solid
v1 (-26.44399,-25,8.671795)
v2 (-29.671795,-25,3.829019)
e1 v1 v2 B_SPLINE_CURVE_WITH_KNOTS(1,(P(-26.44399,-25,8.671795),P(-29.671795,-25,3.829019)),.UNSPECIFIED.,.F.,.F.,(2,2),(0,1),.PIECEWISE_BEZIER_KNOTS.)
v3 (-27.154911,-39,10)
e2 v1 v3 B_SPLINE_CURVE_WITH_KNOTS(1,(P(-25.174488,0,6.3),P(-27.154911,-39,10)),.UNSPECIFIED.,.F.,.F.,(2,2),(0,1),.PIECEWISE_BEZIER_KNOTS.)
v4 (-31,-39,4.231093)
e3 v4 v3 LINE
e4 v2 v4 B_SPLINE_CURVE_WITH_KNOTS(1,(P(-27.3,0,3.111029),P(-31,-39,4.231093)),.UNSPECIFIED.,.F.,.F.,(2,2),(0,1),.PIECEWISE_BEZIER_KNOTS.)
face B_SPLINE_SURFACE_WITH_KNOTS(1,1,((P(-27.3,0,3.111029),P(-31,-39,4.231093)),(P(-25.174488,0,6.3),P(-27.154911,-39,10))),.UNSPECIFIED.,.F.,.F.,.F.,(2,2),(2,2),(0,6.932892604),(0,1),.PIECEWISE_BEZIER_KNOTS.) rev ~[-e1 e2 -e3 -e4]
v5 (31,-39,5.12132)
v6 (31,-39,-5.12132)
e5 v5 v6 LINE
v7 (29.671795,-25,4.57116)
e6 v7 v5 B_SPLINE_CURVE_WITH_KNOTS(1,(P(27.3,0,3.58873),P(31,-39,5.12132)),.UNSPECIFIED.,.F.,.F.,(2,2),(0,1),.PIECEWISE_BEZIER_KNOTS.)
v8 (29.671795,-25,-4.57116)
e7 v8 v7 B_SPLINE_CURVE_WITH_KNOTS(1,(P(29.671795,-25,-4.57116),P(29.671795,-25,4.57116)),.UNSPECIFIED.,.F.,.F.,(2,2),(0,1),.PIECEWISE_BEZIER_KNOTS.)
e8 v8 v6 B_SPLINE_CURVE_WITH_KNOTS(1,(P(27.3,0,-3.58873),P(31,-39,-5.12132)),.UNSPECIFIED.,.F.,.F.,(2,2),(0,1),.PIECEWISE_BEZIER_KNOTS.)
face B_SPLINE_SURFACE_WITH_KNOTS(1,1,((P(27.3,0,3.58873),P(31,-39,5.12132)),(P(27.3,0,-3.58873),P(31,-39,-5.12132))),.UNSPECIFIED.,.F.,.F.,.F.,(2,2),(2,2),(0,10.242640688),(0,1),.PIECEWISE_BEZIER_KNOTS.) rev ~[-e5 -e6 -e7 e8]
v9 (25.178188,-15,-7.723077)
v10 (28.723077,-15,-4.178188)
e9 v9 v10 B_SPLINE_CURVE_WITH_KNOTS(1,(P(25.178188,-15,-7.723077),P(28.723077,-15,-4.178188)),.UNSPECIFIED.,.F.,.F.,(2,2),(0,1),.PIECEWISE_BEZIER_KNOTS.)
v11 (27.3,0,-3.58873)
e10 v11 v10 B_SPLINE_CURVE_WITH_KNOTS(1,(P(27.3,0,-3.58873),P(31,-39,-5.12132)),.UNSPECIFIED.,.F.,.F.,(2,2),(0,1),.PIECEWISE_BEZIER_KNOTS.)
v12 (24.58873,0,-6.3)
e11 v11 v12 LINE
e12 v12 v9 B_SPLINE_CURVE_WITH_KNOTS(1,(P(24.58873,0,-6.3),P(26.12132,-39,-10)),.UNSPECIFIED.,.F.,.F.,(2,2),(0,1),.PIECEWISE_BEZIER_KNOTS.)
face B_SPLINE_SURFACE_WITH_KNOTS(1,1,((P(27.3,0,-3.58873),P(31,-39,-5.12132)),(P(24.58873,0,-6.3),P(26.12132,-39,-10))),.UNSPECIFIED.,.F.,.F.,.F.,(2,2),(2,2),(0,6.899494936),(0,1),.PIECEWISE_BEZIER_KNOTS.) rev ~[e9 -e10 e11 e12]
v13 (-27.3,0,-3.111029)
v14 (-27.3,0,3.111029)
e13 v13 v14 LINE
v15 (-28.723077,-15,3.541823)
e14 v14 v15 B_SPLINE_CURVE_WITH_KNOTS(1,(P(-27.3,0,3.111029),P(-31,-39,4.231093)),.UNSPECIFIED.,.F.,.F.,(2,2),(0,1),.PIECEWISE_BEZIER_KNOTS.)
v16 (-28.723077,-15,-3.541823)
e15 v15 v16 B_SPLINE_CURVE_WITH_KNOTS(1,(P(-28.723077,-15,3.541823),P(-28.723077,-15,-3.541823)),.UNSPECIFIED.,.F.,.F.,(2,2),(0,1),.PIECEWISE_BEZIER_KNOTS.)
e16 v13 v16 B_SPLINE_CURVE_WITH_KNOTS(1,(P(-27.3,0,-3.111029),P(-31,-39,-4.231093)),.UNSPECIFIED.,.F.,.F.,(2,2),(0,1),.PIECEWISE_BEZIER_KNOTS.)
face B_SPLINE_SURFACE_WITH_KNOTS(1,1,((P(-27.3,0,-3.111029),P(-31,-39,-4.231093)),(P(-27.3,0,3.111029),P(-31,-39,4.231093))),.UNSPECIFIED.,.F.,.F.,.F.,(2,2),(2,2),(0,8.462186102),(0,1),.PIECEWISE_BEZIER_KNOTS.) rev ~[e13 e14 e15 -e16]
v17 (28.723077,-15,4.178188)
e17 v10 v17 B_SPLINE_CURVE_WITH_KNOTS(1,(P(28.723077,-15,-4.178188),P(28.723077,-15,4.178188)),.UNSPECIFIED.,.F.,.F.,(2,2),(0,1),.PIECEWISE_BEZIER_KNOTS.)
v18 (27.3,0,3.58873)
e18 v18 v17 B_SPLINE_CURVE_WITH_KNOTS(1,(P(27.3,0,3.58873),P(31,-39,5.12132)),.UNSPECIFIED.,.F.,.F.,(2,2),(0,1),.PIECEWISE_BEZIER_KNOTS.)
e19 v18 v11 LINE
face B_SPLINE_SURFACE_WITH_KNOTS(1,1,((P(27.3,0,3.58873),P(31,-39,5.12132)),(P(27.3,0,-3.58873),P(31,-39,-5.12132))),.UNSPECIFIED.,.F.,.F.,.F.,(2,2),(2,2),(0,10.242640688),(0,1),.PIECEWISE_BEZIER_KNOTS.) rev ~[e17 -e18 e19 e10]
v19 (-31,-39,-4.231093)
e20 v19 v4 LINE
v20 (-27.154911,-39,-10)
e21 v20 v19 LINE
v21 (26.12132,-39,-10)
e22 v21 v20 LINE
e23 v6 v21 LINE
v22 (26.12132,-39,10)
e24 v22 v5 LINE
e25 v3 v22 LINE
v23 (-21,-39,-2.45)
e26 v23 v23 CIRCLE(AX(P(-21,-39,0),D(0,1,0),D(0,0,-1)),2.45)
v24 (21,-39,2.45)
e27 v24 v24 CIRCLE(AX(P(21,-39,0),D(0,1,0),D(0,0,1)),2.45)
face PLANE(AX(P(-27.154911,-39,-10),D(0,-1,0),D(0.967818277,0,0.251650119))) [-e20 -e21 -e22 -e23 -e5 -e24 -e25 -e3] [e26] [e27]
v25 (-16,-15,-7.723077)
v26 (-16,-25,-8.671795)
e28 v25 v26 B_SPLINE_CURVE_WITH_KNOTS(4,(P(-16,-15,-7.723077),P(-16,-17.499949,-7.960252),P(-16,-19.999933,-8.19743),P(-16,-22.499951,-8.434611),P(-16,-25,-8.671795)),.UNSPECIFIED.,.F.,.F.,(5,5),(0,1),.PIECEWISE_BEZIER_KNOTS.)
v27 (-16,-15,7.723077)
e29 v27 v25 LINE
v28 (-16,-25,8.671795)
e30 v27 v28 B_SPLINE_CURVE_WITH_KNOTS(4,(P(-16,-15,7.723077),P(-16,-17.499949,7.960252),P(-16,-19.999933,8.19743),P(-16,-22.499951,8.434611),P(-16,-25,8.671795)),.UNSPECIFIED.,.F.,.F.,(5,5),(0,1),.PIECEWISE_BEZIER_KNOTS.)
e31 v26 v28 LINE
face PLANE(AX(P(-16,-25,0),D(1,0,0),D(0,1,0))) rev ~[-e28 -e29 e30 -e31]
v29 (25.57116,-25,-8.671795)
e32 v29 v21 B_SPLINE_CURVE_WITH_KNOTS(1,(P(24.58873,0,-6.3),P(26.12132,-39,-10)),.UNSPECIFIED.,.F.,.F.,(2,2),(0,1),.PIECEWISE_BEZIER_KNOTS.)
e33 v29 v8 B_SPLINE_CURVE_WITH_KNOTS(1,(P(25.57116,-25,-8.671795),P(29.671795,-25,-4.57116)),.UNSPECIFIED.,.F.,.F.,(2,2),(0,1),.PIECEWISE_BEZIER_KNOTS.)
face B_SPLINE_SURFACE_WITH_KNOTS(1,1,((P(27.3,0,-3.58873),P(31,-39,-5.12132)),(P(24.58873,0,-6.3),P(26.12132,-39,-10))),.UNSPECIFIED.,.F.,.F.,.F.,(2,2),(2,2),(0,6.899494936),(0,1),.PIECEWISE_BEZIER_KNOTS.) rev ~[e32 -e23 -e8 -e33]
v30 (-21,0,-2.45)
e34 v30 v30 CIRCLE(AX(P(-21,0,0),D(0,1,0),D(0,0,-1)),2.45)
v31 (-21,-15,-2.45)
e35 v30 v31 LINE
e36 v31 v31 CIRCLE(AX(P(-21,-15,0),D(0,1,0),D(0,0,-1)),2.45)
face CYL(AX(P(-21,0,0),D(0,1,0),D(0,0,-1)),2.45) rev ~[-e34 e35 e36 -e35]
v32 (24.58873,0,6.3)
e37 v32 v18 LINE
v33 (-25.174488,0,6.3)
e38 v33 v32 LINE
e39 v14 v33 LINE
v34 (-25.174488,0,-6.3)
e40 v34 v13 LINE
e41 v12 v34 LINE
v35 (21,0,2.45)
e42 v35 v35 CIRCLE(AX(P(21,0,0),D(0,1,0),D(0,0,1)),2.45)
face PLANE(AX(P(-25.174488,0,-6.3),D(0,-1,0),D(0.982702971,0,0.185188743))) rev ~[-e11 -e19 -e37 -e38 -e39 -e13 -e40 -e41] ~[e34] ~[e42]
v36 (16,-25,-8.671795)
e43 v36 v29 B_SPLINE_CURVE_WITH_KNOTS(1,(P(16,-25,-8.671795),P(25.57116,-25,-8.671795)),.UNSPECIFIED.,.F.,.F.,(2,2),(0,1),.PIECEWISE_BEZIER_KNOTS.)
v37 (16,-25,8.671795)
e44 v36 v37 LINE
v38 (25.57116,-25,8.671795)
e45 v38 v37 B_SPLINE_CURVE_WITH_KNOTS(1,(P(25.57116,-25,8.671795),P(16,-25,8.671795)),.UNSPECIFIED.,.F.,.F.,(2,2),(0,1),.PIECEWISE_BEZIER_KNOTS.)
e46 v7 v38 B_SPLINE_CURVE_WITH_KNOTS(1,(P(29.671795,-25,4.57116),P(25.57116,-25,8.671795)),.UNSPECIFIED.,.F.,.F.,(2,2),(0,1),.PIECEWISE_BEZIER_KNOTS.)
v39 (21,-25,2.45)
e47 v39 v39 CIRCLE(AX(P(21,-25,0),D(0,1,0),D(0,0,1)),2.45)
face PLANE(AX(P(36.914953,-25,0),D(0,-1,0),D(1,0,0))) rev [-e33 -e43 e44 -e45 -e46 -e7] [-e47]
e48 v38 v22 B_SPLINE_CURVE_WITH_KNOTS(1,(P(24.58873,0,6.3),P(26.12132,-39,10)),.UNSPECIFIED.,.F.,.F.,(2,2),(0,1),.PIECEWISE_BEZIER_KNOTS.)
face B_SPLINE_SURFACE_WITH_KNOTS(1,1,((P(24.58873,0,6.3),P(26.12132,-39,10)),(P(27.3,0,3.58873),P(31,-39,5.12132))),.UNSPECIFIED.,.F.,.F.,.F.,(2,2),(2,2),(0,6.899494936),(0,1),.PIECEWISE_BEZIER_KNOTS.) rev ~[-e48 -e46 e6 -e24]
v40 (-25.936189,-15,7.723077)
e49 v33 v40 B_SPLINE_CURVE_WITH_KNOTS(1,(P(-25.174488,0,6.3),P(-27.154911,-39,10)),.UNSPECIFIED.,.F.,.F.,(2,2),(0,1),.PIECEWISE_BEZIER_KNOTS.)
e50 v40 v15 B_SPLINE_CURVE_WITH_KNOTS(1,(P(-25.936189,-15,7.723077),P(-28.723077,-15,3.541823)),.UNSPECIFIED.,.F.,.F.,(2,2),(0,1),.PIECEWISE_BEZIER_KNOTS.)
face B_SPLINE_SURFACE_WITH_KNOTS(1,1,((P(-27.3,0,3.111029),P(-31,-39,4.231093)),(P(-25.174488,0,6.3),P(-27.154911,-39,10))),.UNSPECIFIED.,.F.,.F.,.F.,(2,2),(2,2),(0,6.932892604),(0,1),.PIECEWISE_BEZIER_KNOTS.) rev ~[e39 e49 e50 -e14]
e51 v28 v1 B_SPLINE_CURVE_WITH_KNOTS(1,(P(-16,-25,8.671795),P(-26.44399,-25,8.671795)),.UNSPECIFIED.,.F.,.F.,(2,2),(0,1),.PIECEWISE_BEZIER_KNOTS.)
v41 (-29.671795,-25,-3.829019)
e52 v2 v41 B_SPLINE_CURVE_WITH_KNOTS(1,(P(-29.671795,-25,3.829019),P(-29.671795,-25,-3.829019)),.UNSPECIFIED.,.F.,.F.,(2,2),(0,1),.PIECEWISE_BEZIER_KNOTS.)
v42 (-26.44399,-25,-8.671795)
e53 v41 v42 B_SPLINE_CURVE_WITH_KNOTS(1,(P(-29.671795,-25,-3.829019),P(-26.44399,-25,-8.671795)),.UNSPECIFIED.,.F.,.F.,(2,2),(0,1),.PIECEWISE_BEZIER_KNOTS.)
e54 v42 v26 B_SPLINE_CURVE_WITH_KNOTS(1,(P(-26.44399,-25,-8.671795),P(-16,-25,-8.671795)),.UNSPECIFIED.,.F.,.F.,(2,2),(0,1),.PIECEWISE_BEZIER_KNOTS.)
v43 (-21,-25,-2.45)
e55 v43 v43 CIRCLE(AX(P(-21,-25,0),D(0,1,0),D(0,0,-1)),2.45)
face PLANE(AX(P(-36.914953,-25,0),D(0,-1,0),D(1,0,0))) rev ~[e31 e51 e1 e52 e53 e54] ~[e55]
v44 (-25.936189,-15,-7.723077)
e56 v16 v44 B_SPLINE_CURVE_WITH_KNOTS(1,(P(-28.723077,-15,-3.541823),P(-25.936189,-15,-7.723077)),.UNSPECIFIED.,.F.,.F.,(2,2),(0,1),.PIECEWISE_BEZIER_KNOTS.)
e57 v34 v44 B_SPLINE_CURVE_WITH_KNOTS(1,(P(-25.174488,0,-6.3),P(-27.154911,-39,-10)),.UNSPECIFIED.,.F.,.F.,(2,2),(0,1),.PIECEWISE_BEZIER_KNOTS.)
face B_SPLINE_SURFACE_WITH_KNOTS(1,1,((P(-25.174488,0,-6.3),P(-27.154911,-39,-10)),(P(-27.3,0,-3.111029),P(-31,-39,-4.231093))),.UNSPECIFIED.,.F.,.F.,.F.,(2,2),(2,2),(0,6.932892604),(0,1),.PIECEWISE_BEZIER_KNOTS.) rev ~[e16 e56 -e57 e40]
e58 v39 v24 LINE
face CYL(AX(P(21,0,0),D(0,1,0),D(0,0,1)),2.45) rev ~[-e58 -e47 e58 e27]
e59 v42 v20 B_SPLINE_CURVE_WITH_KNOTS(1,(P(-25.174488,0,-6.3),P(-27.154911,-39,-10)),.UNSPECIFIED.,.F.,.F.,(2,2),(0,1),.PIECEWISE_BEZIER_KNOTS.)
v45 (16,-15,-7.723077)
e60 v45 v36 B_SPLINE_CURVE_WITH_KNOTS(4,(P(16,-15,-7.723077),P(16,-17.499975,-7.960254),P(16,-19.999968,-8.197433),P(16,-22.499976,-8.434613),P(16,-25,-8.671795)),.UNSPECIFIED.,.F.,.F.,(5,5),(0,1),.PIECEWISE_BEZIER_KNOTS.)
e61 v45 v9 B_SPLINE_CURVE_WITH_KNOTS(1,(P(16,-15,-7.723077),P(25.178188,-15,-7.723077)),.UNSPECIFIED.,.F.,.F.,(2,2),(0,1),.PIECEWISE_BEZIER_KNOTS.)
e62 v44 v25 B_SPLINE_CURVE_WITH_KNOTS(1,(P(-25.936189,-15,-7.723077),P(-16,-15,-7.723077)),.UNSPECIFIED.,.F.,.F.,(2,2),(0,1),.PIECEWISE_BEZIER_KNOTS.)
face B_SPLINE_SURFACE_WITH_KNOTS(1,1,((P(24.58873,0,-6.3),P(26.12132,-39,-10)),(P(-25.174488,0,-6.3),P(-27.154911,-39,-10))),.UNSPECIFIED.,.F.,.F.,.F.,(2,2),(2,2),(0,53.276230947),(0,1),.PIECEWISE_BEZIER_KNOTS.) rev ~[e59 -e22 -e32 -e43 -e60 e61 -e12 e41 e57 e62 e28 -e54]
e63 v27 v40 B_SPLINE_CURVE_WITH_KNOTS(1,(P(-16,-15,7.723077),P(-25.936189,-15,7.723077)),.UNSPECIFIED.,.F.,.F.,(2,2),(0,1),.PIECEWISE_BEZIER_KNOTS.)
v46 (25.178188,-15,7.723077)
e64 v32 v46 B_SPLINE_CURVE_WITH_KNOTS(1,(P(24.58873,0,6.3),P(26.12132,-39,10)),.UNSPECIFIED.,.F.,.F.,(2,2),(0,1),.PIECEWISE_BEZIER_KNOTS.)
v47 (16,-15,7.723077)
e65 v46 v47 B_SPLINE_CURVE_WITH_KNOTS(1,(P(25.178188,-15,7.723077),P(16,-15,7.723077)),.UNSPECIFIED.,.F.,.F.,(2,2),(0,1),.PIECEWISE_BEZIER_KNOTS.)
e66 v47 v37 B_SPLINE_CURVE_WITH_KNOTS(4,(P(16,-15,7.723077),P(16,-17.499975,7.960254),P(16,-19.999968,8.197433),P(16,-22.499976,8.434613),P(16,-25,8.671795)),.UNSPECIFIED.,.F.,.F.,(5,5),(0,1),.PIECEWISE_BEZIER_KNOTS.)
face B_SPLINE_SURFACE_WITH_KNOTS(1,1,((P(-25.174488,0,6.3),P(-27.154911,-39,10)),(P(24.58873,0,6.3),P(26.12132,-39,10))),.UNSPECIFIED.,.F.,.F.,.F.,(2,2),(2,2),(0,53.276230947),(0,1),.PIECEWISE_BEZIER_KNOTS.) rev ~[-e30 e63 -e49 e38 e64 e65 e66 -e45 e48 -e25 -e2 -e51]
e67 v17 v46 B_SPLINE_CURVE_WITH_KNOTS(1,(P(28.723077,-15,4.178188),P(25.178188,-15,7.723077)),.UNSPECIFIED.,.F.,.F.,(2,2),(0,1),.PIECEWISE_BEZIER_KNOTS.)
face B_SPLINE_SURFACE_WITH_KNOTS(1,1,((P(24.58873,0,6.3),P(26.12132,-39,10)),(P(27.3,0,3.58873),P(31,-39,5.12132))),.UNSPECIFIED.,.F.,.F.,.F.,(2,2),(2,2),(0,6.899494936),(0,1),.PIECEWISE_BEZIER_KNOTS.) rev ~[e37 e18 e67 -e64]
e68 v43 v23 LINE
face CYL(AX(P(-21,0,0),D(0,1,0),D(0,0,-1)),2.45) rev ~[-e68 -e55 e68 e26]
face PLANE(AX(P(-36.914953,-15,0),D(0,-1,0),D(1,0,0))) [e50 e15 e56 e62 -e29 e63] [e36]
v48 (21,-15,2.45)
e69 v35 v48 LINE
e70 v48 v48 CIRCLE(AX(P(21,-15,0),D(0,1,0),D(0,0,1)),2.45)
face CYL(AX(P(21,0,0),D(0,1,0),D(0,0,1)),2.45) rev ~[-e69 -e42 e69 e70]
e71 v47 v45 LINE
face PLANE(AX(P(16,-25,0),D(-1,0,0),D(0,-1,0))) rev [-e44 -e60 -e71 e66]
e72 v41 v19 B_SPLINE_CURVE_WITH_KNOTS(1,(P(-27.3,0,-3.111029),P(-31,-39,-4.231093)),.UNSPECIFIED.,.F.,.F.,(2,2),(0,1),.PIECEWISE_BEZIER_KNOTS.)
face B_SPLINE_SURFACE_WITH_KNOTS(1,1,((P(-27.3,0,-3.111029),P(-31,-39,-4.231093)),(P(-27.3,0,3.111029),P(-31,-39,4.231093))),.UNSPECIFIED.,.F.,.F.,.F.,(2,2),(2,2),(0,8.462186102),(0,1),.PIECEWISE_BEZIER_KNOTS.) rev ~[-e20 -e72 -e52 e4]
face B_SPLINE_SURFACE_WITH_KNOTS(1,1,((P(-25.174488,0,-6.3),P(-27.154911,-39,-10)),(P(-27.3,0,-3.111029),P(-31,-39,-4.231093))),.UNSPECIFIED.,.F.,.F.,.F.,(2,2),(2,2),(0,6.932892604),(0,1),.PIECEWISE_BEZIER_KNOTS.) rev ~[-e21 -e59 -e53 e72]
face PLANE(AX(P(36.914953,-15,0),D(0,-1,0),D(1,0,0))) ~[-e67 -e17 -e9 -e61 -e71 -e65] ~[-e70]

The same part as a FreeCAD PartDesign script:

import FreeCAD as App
import Part
import Sketcher
from FreeCAD import Vector


def add_polygon(sketch, points):
    """Adds a closed chain of lines whose ends are joined by coincident constraints."""
    first, n = sketch.GeometryCount, len(points)
    for a, b in zip(points, points[1:] + points[:1]):
        sketch.addGeometry(Part.LineSegment(App.Vector(*a, 0), App.Vector(*b, 0)), False)
    for i in range(n):
        sketch.addConstraint(Sketcher.Constraint("Coincident", first + i, 2, first + (i + 1) % n, 1))

doc = App.newDocument("Part")
body = doc.addObject("PartDesign::Body", "Body")

# Sketch on XZ plane
sketch1 = body.newObject("Sketcher::SketchObject", "Sketch")
sketch1.AttachmentSupport = (doc.getObject("XZ_Plane"), [""])
sketch1.MapMode = "FlatFace"
add_polygon(sketch1, [(-25.2, -6.3), (-27.3, -3.1), (-27.3, 3.1), (-25.2, 6.3), (24.6, 6.3), (27.3, 3.6), (27.3, -3.6), (24.6, -6.3)])  # lines 0-7
sketch1.addConstraint(Sketcher.Constraint("Vertical", 1))
sketch1.addConstraint(Sketcher.Constraint("Horizontal", 3))
sketch1.addConstraint(Sketcher.Constraint("Vertical", 5))
sketch1.addConstraint(Sketcher.Constraint("Horizontal", 7))
sketch1.addConstraint(Sketcher.Constraint("Symmetric", 3, 2, 6, 2, -1))
sketch1.addConstraint(Sketcher.Constraint("Perpendicular", 4, 6))
sketch1.addConstraint(Sketcher.Constraint("Vertical", 2, 2, 7, 2))
sketch1.addConstraint(Sketcher.Constraint("Equal", 0, 2))
sketch1.addConstraint(Sketcher.Constraint("Equal", 4, 6))
sketch1.addConstraint(Sketcher.Constraint("DistanceX", 0, 2, -1, 1, 27.3))
sketch1.addConstraint(Sketcher.Constraint("DistanceY", -1, 1, 2, 2, 6.3))
sketch1.addConstraint(Sketcher.Constraint("DistanceX", -1, 1, 4, 2, 27.3))
sketch1.addConstraint(Sketcher.Constraint("DistanceX", 3, 1, 3, 2, 49.763218))
sketch1.addConstraint(Sketcher.Constraint("DistanceY", 5, 2, 5, 1, 7.17746))
sketch1.addConstraint(Sketcher.Constraint("DistanceY", 1, 2, 4, 2, 0.477701))

# Sketch on XZ plane
sketch2 = body.newObject("Sketcher::SketchObject", "Sketch001")
sketch2.AttachmentSupport = (doc.getObject("XZ_Plane"), [""])
sketch2.MapMode = "FlatFace"
sketch2.AttachmentOffset = App.Placement(Vector(0, 0, 39), App.Rotation())
add_polygon(sketch2, [(26, -10), (-27, -10), (-31, -4), (-31, 4), (-27, 10), (26, 10), (31, 5), (31, -5)])  # lines 0-7
sketch2.addConstraint(Sketcher.Constraint("Horizontal", 0))
sketch2.addConstraint(Sketcher.Constraint("Vertical", 2))
sketch2.addConstraint(Sketcher.Constraint("Horizontal", 4))
sketch2.addConstraint(Sketcher.Constraint("Vertical", 6))
sketch2.addConstraint(Sketcher.Constraint("Symmetric", 0, 2, 3, 2, -1))
sketch2.addConstraint(Sketcher.Constraint("Perpendicular", 5, 7))
sketch2.addConstraint(Sketcher.Constraint("Vertical", 4, 2, 7, 2))
sketch2.addConstraint(Sketcher.Constraint("Equal", 1, 3))
sketch2.addConstraint(Sketcher.Constraint("Equal", 5, 7))
sketch2.addConstraint(Sketcher.Constraint("DistanceY", 0, 2, -1, 1, 10.0))
sketch2.addConstraint(Sketcher.Constraint("DistanceX", 1, 2, -1, 1, 31.0))
sketch2.addConstraint(Sketcher.Constraint("DistanceX", -1, 1, 5, 2, 31.0))
sketch2.addConstraint(Sketcher.Constraint("DistanceX", 0, 2, 0, 1, 53.276231))
sketch2.addConstraint(Sketcher.Constraint("DistanceY", 6, 2, 6, 1, 10.242641))
sketch2.addConstraint(Sketcher.Constraint("DistanceY", 2, 1, 2, 2, 8.462186))

additiveloft = body.newObject("PartDesign::AdditiveLoft", "AdditiveLoft")
additiveloft.Profile = sketch1
additiveloft.Sections = [sketch2]

# Sketch on XZ plane
sketch3 = body.newObject("Sketcher::SketchObject", "Sketch002")
sketch3.AttachmentSupport = (doc.getObject("XZ_Plane"), [""])
sketch3.MapMode = "FlatFace"
sketch3.addGeometry(Part.Circle(Vector(21, 0, 0), Vector(0, 0, 1), 2.5), False)
sketch3.addGeometry(Part.Circle(Vector(-21, 0, 0), Vector(0, 0, 1), 2.5), False)
sketch3.addConstraint(Sketcher.Constraint("Equal", 0, 1))
sketch3.addConstraint(Sketcher.Constraint("Symmetric", 0, 3, 1, 3, -1, 1))
sketch3.addConstraint(Sketcher.Constraint("PointOnObject", 0, 3, -1))
sketch3.addConstraint(Sketcher.Constraint("Diameter", 0, 4.9))
sketch3.addConstraint(Sketcher.Constraint("DistanceX", -1, 1, 0, 3, 21.0))
pocket1 = body.newObject("PartDesign::Pocket", "Pocket")
pocket1.Profile = sketch3
pocket1.Type = "ThroughAll"
pocket1.Reversed = True

# Sketch on XY plane
sketch4 = body.newObject("Sketcher::SketchObject", "Sketch003")
sketch4.AttachmentSupport = (doc.getObject("XY_Plane"), [""])
sketch4.MapMode = "FlatFace"
add_polygon(sketch4, [(-37, -15), (-37, -25), (-16, -25), (-16, -15)])  # lines 0-3
sketch4.addConstraint(Sketcher.Constraint("Vertical", 0))
sketch4.addConstraint(Sketcher.Constraint("Horizontal", 1))
sketch4.addConstraint(Sketcher.Constraint("Vertical", 2))
sketch4.addConstraint(Sketcher.Constraint("Horizontal", 3))
sketch4.addConstraint(Sketcher.Constraint("DistanceY", 0, 2, 0, 1, 10.0))
sketch4.addConstraint(Sketcher.Constraint("DistanceY", 0, 2, -1, 1, 25.0))
sketch4.addConstraint(Sketcher.Constraint("DistanceX", 1, 2, -1, 1, 16.0))
sketch4.addConstraint(Sketcher.Constraint("DistanceX", 1, 1, 1, 2, 20.914953))
pocket2 = body.newObject("PartDesign::Pocket", "Pocket001")
pocket2.Profile = sketch4
pocket2.Length = 103.626768
pocket2.Midplane = True
doc.recompute()

mirrored = body.newObject("PartDesign::Mirrored", "Mirrored")
mirrored.Originals = [pocket2]
mirrored.MirrorPlane = (doc.getObject("YZ_Plane"), [""])
body.Tip = mirrored

doc.recompute()
